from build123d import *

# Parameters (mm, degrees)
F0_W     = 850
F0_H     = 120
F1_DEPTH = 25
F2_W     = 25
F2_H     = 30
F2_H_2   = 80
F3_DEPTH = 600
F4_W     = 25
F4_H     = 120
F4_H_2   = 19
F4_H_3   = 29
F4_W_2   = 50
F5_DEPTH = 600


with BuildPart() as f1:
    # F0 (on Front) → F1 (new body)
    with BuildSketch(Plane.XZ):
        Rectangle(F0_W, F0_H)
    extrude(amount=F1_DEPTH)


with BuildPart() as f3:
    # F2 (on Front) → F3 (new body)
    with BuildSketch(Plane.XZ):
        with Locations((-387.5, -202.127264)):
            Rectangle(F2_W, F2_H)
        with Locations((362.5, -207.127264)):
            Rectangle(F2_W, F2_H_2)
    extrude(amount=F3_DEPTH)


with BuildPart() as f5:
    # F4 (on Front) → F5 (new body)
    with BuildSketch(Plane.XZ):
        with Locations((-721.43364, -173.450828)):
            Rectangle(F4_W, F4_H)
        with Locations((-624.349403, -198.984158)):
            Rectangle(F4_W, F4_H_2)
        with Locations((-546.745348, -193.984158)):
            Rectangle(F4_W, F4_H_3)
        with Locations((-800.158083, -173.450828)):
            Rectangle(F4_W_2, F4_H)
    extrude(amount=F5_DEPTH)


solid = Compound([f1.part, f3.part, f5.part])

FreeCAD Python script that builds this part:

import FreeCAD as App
import Part
import Sketcher
from FreeCAD import Vector
Q = App.Units.Quantity


def add_polygon(sketch, points):
    """Adds a closed chain of lines whose ends are joined by coincident constraints."""
    first, n = sketch.GeometryCount, len(points)
    for a, b in zip(points, points[1:] + points[:1]):
        sketch.addGeometry(Part.LineSegment(App.Vector(*a, 0), App.Vector(*b, 0)), False)
    for i in range(n):
        sketch.addConstraint(Sketcher.Constraint("Coincident", first + i, 2, first + (i + 1) % n, 1))

doc = App.newDocument("Part")
body = doc.addObject("PartDesign::Body", "Body")

sketch1 = body.newObject("Sketcher::SketchObject", "Sketch")
sketch1.AttachmentSupport = (doc.getObject("XZ_Plane"), [""])
sketch1.MapMode = "FlatFace"
add_polygon(sketch1, [(-425, 60), (-425, -60), (425, -60), (425, 60)])
sketch1.addConstraint([
    Sketcher.Constraint("Vertical", 0),
    Sketcher.Constraint("Horizontal", 1),
    Sketcher.Constraint("Vertical", 2),
    Sketcher.Constraint("Horizontal", 3),
    Sketcher.Constraint("Symmetric", 0, 2, 2, 2, -1, 1),
    Sketcher.Constraint("DistanceX", 1, 1, 1, 2, Q("850 mm")),
    Sketcher.Constraint("DistanceY", 0, 2, 0, 1, Q("120 mm")),
])
pad1 = body.newObject("PartDesign::Pad", "Pad")
pad1.Profile = sketch1
pad1.Length = 25
body2 = doc.addObject("PartDesign::Body", "Body001")
body2.AllowCompound = True

sketch2 = body2.newObject("Sketcher::SketchObject", "Sketch001")
sketch2.AttachmentSupport = (doc.getObject("XZ_Plane001"), [""])
sketch2.MapMode = "FlatFace"
add_polygon(sketch2, [(-400, -187.127264), (-400, -217.127264), (-375, -217.127264), (-375, -187.127264)])
add_polygon(sketch2, [(350, -167.127264), (350, -247.127264), (375, -247.127264), (375, -167.127264)])
sketch2.addConstraint([
    Sketcher.Constraint("Vertical", 0),
    Sketcher.Constraint("Horizontal", 1),
    Sketcher.Constraint("Vertical", 2),
    Sketcher.Constraint("Horizontal", 3),
    Sketcher.Constraint("Vertical", 4),
    Sketcher.Constraint("Horizontal", 5),
    Sketcher.Constraint("Vertical", 6),
    Sketcher.Constraint("Horizontal", 7),
    Sketcher.Constraint("Equal", 3, 5),
    Sketcher.Constraint("DistanceX", 1, 1, 1, 2, Q("25 mm")),
    Sketcher.Constraint("DistanceY", 0, 2, 0, 1, Q("30 mm")),
    Sketcher.Constraint("DistanceY", 4, 2, 4, 1, Q("80 mm")),
    Sketcher.Constraint("DistanceX", 0, 2, -1, 1, Q("400 mm")),
    Sketcher.Constraint("DistanceX", -1, 1, 4, 2, Q("350 mm")),
    Sketcher.Constraint("DistanceY", 4, 2, 1, 2, Q("30 mm")),
    Sketcher.Constraint("DistanceY", 0, 2, -1, 1, Q("217.127264 mm")),
])
pad2 = body2.newObject("PartDesign::Pad", "Pad001")
pad2.Profile = sketch2
pad2.Length = 600
body3 = doc.addObject("PartDesign::Body", "Body002")
body3.AllowCompound = True

sketch3 = body3.newObject("Sketcher::SketchObject", "Sketch002")
sketch3.AttachmentSupport = (doc.getObject("XZ_Plane002"), [""])
sketch3.MapMode = "FlatFace"
add_polygon(sketch3, [(-733.93364, -113.450828), (-733.93364, -233.450828), (-708.93364, -233.450828), (-708.93364, -113.450828)])
add_polygon(sketch3, [(-636.849403, -189.484158), (-636.849403, -208.484158), (-611.849403, -208.484158), (-611.849403, -189.484158)])
add_polygon(sketch3, [(-559.245348, -179.484158), (-559.245348, -208.484158), (-534.245348, -208.484158), (-534.245348, -179.484158)])
add_polygon(sketch3, [(-825.158083, -113.450828), (-825.158083, -233.450828), (-775.158083, -233.450828), (-775.158083, -113.450828)])
sketch3.addConstraint([
    Sketcher.Constraint("Vertical", 0),
    Sketcher.Constraint("Horizontal", 1),
    Sketcher.Constraint("Vertical", 2),
    Sketcher.Constraint("Horizontal", 3),
    Sketcher.Constraint("Vertical", 4),
    Sketcher.Constraint("Horizontal", 5),
    Sketcher.Constraint("Vertical", 6),
    Sketcher.Constraint("Horizontal", 7),
    Sketcher.Constraint("Vertical", 8),
    Sketcher.Constraint("Horizontal", 9),
    Sketcher.Constraint("Vertical", 10),
    Sketcher.Constraint("Horizontal", 11),
    Sketcher.Constraint("Vertical", 12),
    Sketcher.Constraint("Horizontal", 13),
    Sketcher.Constraint("Vertical", 14),
    Sketcher.Constraint("Horizontal", 15),
    Sketcher.Constraint("Horizontal", 5, 2, 8, 2),
    Sketcher.Constraint("Horizontal", 1, 2, 12, 2),
    Sketcher.Constraint("Horizontal", 3, 2, 14, 2),
    Sketcher.Constraint("Equal", 3, 5),
    Sketcher.Constraint("Equal", 7, 9),
    Sketcher.Constraint("DistanceX", 1, 1, 1, 2, Q("25 mm")),
    Sketcher.Constraint("DistanceX", 13, 1, 13, 2, Q("50 mm")),
    Sketcher.Constraint("DistanceY", 0, 2, 0, 1, Q("120 mm")),
    Sketcher.Constraint("DistanceY", 4, 2, 4, 1, Q("19 mm")),
    Sketcher.Constraint("DistanceY", 8, 2, 8, 1, Q("29 mm")),
    Sketcher.Constraint("DistanceX", 0, 2, -1, 1, Q("733.93364 mm")),
    Sketcher.Constraint("DistanceY", 0, 2, -1, 1, Q("233.450828 mm")),
    Sketcher.Constraint("DistanceY", 4, 2, -1, 1, Q("208.484158 mm")),
    Sketcher.Constraint("DistanceX", 8, 2, -1, 1, Q("559.245348 mm")),
    Sketcher.Constraint("DistanceX", 12, 2, 4, 2, Q("188.30868 mm")),
    Sketcher.Constraint("DistanceX", 4, 2, -1, 1, Q("636.849403 mm")),
])
pad3 = body3.newObject("PartDesign::Pad", "Pad002")
pad3.Profile = sketch3
pad3.Length = 600

doc.recompute()
